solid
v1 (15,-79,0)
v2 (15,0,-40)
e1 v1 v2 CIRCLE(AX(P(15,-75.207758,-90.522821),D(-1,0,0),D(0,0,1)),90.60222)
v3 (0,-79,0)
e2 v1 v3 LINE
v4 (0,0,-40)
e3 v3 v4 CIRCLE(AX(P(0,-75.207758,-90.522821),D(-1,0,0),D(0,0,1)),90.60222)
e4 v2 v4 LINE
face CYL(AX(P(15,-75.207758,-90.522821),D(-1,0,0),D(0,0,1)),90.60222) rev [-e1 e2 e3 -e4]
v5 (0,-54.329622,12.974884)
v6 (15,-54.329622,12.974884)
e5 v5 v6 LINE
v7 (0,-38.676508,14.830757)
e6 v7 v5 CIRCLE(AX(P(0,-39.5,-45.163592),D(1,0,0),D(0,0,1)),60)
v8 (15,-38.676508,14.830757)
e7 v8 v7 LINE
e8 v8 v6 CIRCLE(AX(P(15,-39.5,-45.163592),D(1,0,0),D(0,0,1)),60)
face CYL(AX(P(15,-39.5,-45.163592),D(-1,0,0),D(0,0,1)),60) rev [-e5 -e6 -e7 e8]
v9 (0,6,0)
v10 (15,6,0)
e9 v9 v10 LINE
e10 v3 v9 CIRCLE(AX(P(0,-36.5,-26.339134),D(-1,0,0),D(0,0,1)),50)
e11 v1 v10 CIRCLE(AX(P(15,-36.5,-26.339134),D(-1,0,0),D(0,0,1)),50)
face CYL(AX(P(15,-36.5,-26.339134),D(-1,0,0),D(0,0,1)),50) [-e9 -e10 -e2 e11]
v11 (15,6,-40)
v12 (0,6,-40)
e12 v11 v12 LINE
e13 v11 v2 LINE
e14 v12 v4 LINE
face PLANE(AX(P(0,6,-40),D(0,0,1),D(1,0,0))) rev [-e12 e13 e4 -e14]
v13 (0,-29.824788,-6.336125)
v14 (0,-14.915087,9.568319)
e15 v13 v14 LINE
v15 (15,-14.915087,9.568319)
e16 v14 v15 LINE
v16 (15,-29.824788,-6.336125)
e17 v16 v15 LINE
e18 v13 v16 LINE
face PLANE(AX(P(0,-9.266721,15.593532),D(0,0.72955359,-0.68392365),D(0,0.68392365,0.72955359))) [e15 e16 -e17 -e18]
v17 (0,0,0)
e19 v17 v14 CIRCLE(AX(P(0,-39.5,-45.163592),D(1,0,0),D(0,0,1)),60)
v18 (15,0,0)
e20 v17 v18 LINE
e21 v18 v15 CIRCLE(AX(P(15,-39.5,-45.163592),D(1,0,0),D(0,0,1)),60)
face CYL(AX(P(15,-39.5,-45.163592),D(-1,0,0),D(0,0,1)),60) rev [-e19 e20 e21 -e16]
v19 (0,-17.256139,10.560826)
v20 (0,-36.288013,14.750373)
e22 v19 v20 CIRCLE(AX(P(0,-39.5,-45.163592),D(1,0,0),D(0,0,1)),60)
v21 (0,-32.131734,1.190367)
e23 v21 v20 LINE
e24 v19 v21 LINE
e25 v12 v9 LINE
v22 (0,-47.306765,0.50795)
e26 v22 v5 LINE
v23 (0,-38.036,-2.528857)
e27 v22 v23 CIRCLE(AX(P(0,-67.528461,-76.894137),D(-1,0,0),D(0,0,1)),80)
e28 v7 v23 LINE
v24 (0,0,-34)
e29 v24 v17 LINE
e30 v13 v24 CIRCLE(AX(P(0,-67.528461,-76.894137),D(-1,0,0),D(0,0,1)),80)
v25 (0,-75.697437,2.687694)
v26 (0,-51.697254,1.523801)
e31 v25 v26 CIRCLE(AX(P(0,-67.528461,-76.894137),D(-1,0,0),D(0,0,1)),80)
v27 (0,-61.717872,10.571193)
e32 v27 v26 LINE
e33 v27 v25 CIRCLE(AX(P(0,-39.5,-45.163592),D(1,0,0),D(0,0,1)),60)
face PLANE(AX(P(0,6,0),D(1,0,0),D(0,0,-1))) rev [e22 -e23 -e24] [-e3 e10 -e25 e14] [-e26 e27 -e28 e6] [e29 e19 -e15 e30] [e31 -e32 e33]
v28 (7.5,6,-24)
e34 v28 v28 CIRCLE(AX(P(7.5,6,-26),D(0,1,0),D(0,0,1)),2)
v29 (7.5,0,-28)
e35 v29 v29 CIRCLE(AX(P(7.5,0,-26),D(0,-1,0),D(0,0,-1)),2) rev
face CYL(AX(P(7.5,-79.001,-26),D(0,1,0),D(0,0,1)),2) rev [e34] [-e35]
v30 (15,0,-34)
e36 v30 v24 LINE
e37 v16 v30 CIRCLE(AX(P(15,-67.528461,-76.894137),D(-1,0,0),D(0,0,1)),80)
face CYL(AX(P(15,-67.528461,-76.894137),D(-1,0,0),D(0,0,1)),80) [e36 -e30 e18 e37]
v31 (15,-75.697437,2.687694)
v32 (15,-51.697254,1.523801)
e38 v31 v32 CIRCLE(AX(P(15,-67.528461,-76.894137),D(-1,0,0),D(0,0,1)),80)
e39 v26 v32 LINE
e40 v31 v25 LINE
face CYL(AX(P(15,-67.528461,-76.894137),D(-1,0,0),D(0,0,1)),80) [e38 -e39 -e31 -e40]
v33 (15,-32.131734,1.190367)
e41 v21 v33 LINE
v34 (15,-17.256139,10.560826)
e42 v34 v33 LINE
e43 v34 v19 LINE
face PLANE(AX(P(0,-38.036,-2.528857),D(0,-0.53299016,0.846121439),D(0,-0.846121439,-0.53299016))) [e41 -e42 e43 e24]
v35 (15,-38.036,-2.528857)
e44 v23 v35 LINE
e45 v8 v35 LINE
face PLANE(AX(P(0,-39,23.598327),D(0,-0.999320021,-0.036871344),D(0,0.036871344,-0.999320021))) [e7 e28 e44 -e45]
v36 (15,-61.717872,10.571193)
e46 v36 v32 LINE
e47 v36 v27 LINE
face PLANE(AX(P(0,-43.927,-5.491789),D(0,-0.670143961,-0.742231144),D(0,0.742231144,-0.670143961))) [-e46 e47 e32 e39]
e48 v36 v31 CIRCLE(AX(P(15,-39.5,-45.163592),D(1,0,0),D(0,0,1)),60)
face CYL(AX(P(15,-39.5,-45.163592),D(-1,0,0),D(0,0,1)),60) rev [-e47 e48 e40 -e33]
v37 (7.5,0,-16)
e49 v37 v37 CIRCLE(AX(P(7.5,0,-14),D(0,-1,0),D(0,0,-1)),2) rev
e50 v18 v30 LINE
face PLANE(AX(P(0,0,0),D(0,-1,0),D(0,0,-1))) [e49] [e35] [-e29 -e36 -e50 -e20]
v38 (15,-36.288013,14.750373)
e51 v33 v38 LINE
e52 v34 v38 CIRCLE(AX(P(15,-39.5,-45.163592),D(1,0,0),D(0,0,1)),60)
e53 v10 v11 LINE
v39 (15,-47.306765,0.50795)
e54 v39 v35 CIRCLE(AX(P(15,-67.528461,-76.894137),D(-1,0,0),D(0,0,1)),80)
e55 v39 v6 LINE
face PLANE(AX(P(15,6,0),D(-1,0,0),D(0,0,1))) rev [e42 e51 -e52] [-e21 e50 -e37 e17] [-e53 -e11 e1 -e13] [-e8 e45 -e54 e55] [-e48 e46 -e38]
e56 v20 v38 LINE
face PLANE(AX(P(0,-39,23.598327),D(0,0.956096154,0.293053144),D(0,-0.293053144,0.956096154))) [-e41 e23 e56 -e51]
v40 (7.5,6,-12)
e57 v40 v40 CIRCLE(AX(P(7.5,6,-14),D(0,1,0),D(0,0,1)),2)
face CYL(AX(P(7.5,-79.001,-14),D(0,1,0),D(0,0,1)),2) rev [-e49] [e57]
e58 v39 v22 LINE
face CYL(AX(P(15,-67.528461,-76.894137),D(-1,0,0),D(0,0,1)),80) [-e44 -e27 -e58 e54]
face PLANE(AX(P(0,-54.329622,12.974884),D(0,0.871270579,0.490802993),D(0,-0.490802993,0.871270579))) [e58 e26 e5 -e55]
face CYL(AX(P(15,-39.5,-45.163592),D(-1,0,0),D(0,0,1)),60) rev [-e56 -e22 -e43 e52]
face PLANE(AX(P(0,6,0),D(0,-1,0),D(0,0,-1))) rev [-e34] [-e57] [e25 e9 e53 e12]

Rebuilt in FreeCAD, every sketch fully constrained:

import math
import FreeCAD as App
import Part
import Sketcher
from FreeCAD import Vector
Q = App.Units.Quantity


def add_polygon(sketch, points):
    """Adds a closed chain of lines whose ends are joined by coincident constraints."""
    first, n = sketch.GeometryCount, len(points)
    for a, b in zip(points, points[1:] + points[:1]):
        sketch.addGeometry(Part.LineSegment(App.Vector(*a, 0), App.Vector(*b, 0)), False)
    for i in range(n):
        sketch.addConstraint(Sketcher.Constraint("Coincident", first + i, 2, first + (i + 1) % n, 1))

doc = App.newDocument("Part")
body = doc.addObject("PartDesign::Body", "Body")

# Sketch on XZ plane
sketch1 = doc.addObject("Sketcher::SketchObject", "Sketch")
body.addObject(sketch1)
sketch1.AttachmentSupport = (doc.XZ_Plane, [""])
sketch1.MapMode = "FlatFace"
add_polygon(sketch1, [(0, -40), (0, 0), (15, 0), (15, -40)])  # lines 0-3
sketch1.addConstraint([
    Sketcher.Constraint("Vertical", 0),
    Sketcher.Constraint("Horizontal", 1),
    Sketcher.Constraint("Vertical", 2),
    Sketcher.Constraint("Horizontal", 3),
    Sketcher.Constraint("Coincident", 0, 2, -1, 1),
    Sketcher.Constraint("DistanceX", 1, 1, 1, 2, Q("15 mm")),
    Sketcher.Constraint("DistanceY", 0, 1, 0, 2, Q("40 mm")),
])
pad1 = doc.addObject("PartDesign::Pad", "Pad")
body.addObject(pad1)
pad1.Profile = sketch1
pad1.Length = 6
pad1.Reversed = True

# Sketch on YZ plane
sketch2 = doc.addObject("Sketcher::SketchObject", "Sketch001")
body.addObject(sketch2)
sketch2.AttachmentSupport = (doc.YZ_Plane, [""])
sketch2.MapMode = "FlatFace"
sketch2.addGeometry([
    Part.LineSegment(Vector(6, 0, 0), Vector(0, 0, 0)),
    Part.ArcOfCircle(Part.Circle(Vector(-40, -45, 0), Vector(0, 0, 1), 60), math.radians(49), math.radians(131)),
    Part.ArcOfCircle(Part.Circle(Vector(-36, -26, 0), Vector(0, 0, 1), 50), math.radians(32), math.radians(148)),
], False)
sketch2.addConstraint([
    Sketcher.Constraint("Coincident", 0, 2, 1, 1),
    Sketcher.Constraint("Coincident", 1, 2, 2, 2),
    Sketcher.Constraint("Coincident", 2, 1, 0, 1),
    Sketcher.Constraint("Horizontal", 0),
    Sketcher.Constraint("Coincident", 0, 2, -1, 1),
    Sketcher.Constraint("PointOnObject", 1, 2, -1),
    Sketcher.Constraint("Radius", 1, Q("60 mm")),
    Sketcher.Constraint("Radius", 2, Q("50 mm")),
    Sketcher.Constraint("DistanceX", 0, 2, 0, 1, Q("6 mm")),
    Sketcher.Constraint("DistanceX", 1, 2, -1, 1, Q("79 mm")),
])
pad2 = doc.addObject("PartDesign::Pad", "Pad001")
body.addObject(pad2)
pad2.Profile = sketch2
pad2.Length = 15

# Sketch on YZ plane
sketch3 = doc.addObject("Sketcher::SketchObject", "Sketch002")
body.addObject(sketch3)
sketch3.AttachmentSupport = (doc.YZ_Plane, [""])
sketch3.MapMode = "FlatFace"
sketch3.addGeometry([
    Part.ArcOfCircle(Part.Circle(Vector(-67.5, -76.9, 0), Vector(0, 0, 1), 80), math.radians(32), math.radians(96)),
    Part.LineSegment(Vector(0, -34, 0), Vector(0, -40, 0)),
    Part.ArcOfCircle(Part.Circle(Vector(-75.2, -90.5, 0), Vector(0, 0, 1), 90.6), math.radians(34), math.radians(92)),
    Part.ArcOfCircle(Part.Circle(Vector(-39.5, -45.2, 0), Vector(0, 0, 1), 60), math.radians(127.11), math.radians(131.17)),
], False)
sketch3.addConstraint([
    Sketcher.Constraint("Coincident", 0, 1, 1, 1),
    Sketcher.Constraint("Coincident", 1, 2, 2, 1),
    Sketcher.Constraint("Coincident", 2, 2, 3, 2),
    Sketcher.Constraint("Coincident", 3, 1, 0, 2),
    Sketcher.Constraint("Vertical", 1),
    Sketcher.Constraint("PointOnObject", 0, 1, -2),
    Sketcher.Constraint("PointOnObject", 2, 2, -1),
    Sketcher.Constraint("Radius", 0, Q("80 mm")),
    Sketcher.Constraint("Radius", 3, Q("60 mm")),
    Sketcher.Constraint("DistanceY", 1, 2, 1, 1, Q("6 mm")),
    Sketcher.Constraint("DistanceY", 0, 1, -1, 1, Q("34 mm")),
    Sketcher.Constraint("DistanceX", 2, 2, -1, 1, Q("79 mm")),
    Sketcher.Constraint("DistanceX", 3, 3, -1, 1, Q("39.5 mm")),
    Sketcher.Constraint("Radius", 2, Q("90.60222 mm")),
    Sketcher.Constraint("DistanceX", 0, 3, -1, 1, Q("67.528461 mm")),
])
pad3 = doc.addObject("PartDesign::Pad", "Pad002")
body.addObject(pad3)
pad3.Profile = sketch3
pad3.Length = 15

# Sketch on YZ plane
sketch4 = doc.addObject("Sketcher::SketchObject", "Sketch003")
body.addObject(sketch4)
sketch4.AttachmentSupport = (doc.YZ_Plane, [""])
sketch4.MapMode = "FlatFace"
sketch4.AttachmentOffset = App.Placement(Vector(0, 0, 15), App.Rotation())
sketch4.addGeometry([
    Part.LineSegment(Vector(-30, -6, 0), Vector(-39, 24, 0)),
    Part.LineSegment(Vector(-39, 24, 0), Vector(-38, -3, 0)),
    Part.ArcOfCircle(Part.Circle(Vector(-33, -3, 0), Vector(0, 0, 1), 5), math.radians(-180), math.radians(-50)),
], False)
sketch4.addConstraint([
    Sketcher.Constraint("Coincident", 0, 2, 1, 1),
    Sketcher.Constraint("Coincident", 1, 2, 2, 1),
    Sketcher.Constraint("Coincident", 2, 2, 0, 1),
    Sketcher.Constraint("Radius", 2, Q("5 mm")),
    Sketcher.Constraint("DistanceX", 0, 2, -1, 1, Q("39 mm")),
    Sketcher.Constraint("DistanceX", 1, 2, -1, 1, Q("38.036 mm")),
    Sketcher.Constraint("Distance", 0, Q("31.309039 mm")),
    Sketcher.Constraint("Distance", 1, Q("26.144962 mm")),
    Sketcher.Constraint("DistanceY", 2, 3, -1, 1, Q("2.50367 mm")),
    Sketcher.Constraint("DistanceY", 2, 2, 0, 2, Q("29.934451 mm")),
])
pad4 = doc.addObject("PartDesign::Pad", "Pad003")
body.addObject(pad4)
pad4.Profile = sketch4
pad4.Length = 15
pad4.Reversed = True

# Sketch on YZ plane
sketch5 = doc.addObject("Sketcher::SketchObject", "Sketch004")
body.addObject(sketch5)
sketch5.AttachmentSupport = (doc.YZ_Plane, [""])
sketch5.MapMode = "FlatFace"
sketch5.AttachmentOffset = App.Placement(Vector(0, 0, 15), App.Rotation())
add_polygon(sketch5, [(-44, -5), (-54, 13), (-66, 14)])  # lines 0-2
sketch5.addConstraint([
    Sketcher.Constraint("DistanceX", 2, 2, -1, 1, Q("43.927 mm")),
    Sketcher.Constraint("Distance", 2, Q("29.402571 mm")),
    Sketcher.Constraint("DistanceX", 0, 2, -1, 1, Q("54.329622 mm")),
    Sketcher.Constraint("DistanceY", 2, 2, -1, 1, Q("5.491789 mm")),
    Sketcher.Constraint("Distance", 0, Q("21.195107 mm")),
    Sketcher.Constraint("Distance", 1, Q("11.487707 mm")),
])
pad5 = doc.addObject("PartDesign::Pad", "Pad004")
body.addObject(pad5)
pad5.Profile = sketch5
pad5.Length = 15
pad5.Reversed = True

# Sketch on YZ plane
sketch6 = doc.addObject("Sketcher::SketchObject", "Sketch005")
body.addObject(sketch6)
sketch6.AttachmentSupport = (doc.YZ_Plane, [""])
sketch6.MapMode = "FlatFace"
sketch6.AttachmentOffset = App.Placement(Vector(0, 0, 15), App.Rotation())
add_polygon(sketch6, [(-30, -6), (-9, 16), (-38, -3)])  # lines 0-2
sketch6.addConstraint([
    Sketcher.Constraint("DistanceX", 1, 2, -1, 1, Q("38.036 mm")),
    Sketcher.Constraint("Distance", 1, Q("34.001359 mm")),
    Sketcher.Constraint("DistanceX", 0, 2, -1, 1, Q("9.266721 mm")),
    Sketcher.Constraint("Distance", 0, Q("30.059008 mm")),
    Sketcher.Constraint("Distance", 2, Q("9.050928 mm")),
    Sketcher.Constraint("DistanceY", -1, 1, 0, 2, Q("15.593532 mm")),
])
pad6 = doc.addObject("PartDesign::Pad", "Pad005")
body.addObject(pad6)
pad6.Profile = sketch6
pad6.Length = 15
pad6.Reversed = True

# Sketch on XZ plane
sketch7 = doc.addObject("Sketcher::SketchObject", "Sketch006")
body.addObject(sketch7)
sketch7.AttachmentSupport = (doc.XZ_Plane, [""])
sketch7.MapMode = "FlatFace"
sketch7.AttachmentOffset = App.Placement(Vector(0, 0, -6), App.Rotation())
sketch7.addGeometry(Part.Circle(Vector(7.5, -26, 0), Vector(0, 0, 1), 2), False)
sketch7.addConstraint([
    Sketcher.Constraint("Diameter", 0, Q("4 mm")),
    Sketcher.Constraint("DistanceY", 0, 3, -1, 1, Q("26 mm")),
    Sketcher.Constraint("DistanceX", -1, 1, 0, 3, Q("7.5 mm")),
])
pocket1 = doc.addObject("PartDesign::Pocket", "Pocket")
body.addObject(pocket1)
pocket1.Profile = sketch7
pocket1.Type = "UpToFirst"
pocket1.Reversed = True

# Sketch on XZ plane
sketch8 = doc.addObject("Sketcher::SketchObject", "Sketch007")
body.addObject(sketch8)
sketch8.AttachmentSupport = (doc.XZ_Plane, [""])
sketch8.MapMode = "FlatFace"
sketch8.AttachmentOffset = App.Placement(Vector(0, 0, -6), App.Rotation())
sketch8.addGeometry(Part.Circle(Vector(7.5, -14, 0), Vector(0, 0, 1), 2), False)
sketch8.addConstraint([
    Sketcher.Constraint("Diameter", 0, Q("4 mm")),
    Sketcher.Constraint("DistanceY", 0, 3, -1, 1, Q("14 mm")),
    Sketcher.Constraint("DistanceX", -1, 1, 0, 3, Q("7.5 mm")),
])
pocket2 = doc.addObject("PartDesign::Pocket", "Pocket001")
body.addObject(pocket2)
pocket2.Profile = sketch8
pocket2.Type = "UpToFirst"
pocket2.Reversed = True

doc.recompute()
